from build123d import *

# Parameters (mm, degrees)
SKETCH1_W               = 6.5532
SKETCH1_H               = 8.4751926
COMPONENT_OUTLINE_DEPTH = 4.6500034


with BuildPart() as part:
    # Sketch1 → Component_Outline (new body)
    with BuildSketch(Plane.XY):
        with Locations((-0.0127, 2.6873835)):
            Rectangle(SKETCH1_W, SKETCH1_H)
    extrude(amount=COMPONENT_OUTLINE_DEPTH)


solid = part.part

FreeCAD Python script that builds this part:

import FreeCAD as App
import Part
import Sketcher
from FreeCAD import Vector
Q = App.Units.Quantity


def add_polygon(sketch, points):
    """Adds a closed chain of lines whose ends are joined by coincident constraints."""
    first, n = sketch.GeometryCount, len(points)
    for a, b in zip(points, points[1:] + points[:1]):
        sketch.addGeometry(Part.LineSegment(App.Vector(*a, 0), App.Vector(*b, 0)), False)
    for i in range(n):
        sketch.addConstraint(Sketcher.Constraint("Coincident", first + i, 2, first + (i + 1) % n, 1))

doc = App.newDocument("Part")
params = doc.addObject("Spreadsheet::Sheet", "Params")
for row, (alias, value) in enumerate([
    ("sketch1_width", "0.258 in"),
    ("pad1_length", "4.650003 mm"),
], start=1):
    params.set(f"A{row}", alias)
    params.set(f"B{row}", "=" + value)
    params.setAlias(f"B{row}", alias)

body = doc.addObject("PartDesign::Body", "Body")

# Sketch on XY plane
sketch1 = body.newObject("Sketcher::SketchObject", "Sketch")
sketch1.AttachmentSupport = (doc.getObject("XY_Plane"), [""])
sketch1.MapMode = "FlatFace"
add_polygon(sketch1, [(-3, 7), (-3, -2), (3, -2), (3, 7)])  # lines 0-3
sketch1.addConstraint([
    Sketcher.Constraint("Vertical", 0),
    Sketcher.Constraint("Horizontal", 1),
    Sketcher.Constraint("Vertical", 2),
    Sketcher.Constraint("Horizontal", 3),
    Sketcher.Constraint("DistanceX", 1, 1, 1, 2, Q("0.258 in")),
    Sketcher.Constraint("DistanceX", 0, 2, -1, 1, Q("0.1295 in")),
    Sketcher.Constraint("DistanceY", 0, 2, 0, 1, 8.475193),
    Sketcher.Constraint("DistanceY", -1, 1, 2, 2, 6.92498),
])
sketch1.setExpression("Constraints[8]", "Params.sketch1_width")
pad1 = body.newObject("PartDesign::Pad", "Pad")
pad1.Profile = sketch1
pad1.setExpression("Length", "Params.pad1_length")

doc.recompute()
